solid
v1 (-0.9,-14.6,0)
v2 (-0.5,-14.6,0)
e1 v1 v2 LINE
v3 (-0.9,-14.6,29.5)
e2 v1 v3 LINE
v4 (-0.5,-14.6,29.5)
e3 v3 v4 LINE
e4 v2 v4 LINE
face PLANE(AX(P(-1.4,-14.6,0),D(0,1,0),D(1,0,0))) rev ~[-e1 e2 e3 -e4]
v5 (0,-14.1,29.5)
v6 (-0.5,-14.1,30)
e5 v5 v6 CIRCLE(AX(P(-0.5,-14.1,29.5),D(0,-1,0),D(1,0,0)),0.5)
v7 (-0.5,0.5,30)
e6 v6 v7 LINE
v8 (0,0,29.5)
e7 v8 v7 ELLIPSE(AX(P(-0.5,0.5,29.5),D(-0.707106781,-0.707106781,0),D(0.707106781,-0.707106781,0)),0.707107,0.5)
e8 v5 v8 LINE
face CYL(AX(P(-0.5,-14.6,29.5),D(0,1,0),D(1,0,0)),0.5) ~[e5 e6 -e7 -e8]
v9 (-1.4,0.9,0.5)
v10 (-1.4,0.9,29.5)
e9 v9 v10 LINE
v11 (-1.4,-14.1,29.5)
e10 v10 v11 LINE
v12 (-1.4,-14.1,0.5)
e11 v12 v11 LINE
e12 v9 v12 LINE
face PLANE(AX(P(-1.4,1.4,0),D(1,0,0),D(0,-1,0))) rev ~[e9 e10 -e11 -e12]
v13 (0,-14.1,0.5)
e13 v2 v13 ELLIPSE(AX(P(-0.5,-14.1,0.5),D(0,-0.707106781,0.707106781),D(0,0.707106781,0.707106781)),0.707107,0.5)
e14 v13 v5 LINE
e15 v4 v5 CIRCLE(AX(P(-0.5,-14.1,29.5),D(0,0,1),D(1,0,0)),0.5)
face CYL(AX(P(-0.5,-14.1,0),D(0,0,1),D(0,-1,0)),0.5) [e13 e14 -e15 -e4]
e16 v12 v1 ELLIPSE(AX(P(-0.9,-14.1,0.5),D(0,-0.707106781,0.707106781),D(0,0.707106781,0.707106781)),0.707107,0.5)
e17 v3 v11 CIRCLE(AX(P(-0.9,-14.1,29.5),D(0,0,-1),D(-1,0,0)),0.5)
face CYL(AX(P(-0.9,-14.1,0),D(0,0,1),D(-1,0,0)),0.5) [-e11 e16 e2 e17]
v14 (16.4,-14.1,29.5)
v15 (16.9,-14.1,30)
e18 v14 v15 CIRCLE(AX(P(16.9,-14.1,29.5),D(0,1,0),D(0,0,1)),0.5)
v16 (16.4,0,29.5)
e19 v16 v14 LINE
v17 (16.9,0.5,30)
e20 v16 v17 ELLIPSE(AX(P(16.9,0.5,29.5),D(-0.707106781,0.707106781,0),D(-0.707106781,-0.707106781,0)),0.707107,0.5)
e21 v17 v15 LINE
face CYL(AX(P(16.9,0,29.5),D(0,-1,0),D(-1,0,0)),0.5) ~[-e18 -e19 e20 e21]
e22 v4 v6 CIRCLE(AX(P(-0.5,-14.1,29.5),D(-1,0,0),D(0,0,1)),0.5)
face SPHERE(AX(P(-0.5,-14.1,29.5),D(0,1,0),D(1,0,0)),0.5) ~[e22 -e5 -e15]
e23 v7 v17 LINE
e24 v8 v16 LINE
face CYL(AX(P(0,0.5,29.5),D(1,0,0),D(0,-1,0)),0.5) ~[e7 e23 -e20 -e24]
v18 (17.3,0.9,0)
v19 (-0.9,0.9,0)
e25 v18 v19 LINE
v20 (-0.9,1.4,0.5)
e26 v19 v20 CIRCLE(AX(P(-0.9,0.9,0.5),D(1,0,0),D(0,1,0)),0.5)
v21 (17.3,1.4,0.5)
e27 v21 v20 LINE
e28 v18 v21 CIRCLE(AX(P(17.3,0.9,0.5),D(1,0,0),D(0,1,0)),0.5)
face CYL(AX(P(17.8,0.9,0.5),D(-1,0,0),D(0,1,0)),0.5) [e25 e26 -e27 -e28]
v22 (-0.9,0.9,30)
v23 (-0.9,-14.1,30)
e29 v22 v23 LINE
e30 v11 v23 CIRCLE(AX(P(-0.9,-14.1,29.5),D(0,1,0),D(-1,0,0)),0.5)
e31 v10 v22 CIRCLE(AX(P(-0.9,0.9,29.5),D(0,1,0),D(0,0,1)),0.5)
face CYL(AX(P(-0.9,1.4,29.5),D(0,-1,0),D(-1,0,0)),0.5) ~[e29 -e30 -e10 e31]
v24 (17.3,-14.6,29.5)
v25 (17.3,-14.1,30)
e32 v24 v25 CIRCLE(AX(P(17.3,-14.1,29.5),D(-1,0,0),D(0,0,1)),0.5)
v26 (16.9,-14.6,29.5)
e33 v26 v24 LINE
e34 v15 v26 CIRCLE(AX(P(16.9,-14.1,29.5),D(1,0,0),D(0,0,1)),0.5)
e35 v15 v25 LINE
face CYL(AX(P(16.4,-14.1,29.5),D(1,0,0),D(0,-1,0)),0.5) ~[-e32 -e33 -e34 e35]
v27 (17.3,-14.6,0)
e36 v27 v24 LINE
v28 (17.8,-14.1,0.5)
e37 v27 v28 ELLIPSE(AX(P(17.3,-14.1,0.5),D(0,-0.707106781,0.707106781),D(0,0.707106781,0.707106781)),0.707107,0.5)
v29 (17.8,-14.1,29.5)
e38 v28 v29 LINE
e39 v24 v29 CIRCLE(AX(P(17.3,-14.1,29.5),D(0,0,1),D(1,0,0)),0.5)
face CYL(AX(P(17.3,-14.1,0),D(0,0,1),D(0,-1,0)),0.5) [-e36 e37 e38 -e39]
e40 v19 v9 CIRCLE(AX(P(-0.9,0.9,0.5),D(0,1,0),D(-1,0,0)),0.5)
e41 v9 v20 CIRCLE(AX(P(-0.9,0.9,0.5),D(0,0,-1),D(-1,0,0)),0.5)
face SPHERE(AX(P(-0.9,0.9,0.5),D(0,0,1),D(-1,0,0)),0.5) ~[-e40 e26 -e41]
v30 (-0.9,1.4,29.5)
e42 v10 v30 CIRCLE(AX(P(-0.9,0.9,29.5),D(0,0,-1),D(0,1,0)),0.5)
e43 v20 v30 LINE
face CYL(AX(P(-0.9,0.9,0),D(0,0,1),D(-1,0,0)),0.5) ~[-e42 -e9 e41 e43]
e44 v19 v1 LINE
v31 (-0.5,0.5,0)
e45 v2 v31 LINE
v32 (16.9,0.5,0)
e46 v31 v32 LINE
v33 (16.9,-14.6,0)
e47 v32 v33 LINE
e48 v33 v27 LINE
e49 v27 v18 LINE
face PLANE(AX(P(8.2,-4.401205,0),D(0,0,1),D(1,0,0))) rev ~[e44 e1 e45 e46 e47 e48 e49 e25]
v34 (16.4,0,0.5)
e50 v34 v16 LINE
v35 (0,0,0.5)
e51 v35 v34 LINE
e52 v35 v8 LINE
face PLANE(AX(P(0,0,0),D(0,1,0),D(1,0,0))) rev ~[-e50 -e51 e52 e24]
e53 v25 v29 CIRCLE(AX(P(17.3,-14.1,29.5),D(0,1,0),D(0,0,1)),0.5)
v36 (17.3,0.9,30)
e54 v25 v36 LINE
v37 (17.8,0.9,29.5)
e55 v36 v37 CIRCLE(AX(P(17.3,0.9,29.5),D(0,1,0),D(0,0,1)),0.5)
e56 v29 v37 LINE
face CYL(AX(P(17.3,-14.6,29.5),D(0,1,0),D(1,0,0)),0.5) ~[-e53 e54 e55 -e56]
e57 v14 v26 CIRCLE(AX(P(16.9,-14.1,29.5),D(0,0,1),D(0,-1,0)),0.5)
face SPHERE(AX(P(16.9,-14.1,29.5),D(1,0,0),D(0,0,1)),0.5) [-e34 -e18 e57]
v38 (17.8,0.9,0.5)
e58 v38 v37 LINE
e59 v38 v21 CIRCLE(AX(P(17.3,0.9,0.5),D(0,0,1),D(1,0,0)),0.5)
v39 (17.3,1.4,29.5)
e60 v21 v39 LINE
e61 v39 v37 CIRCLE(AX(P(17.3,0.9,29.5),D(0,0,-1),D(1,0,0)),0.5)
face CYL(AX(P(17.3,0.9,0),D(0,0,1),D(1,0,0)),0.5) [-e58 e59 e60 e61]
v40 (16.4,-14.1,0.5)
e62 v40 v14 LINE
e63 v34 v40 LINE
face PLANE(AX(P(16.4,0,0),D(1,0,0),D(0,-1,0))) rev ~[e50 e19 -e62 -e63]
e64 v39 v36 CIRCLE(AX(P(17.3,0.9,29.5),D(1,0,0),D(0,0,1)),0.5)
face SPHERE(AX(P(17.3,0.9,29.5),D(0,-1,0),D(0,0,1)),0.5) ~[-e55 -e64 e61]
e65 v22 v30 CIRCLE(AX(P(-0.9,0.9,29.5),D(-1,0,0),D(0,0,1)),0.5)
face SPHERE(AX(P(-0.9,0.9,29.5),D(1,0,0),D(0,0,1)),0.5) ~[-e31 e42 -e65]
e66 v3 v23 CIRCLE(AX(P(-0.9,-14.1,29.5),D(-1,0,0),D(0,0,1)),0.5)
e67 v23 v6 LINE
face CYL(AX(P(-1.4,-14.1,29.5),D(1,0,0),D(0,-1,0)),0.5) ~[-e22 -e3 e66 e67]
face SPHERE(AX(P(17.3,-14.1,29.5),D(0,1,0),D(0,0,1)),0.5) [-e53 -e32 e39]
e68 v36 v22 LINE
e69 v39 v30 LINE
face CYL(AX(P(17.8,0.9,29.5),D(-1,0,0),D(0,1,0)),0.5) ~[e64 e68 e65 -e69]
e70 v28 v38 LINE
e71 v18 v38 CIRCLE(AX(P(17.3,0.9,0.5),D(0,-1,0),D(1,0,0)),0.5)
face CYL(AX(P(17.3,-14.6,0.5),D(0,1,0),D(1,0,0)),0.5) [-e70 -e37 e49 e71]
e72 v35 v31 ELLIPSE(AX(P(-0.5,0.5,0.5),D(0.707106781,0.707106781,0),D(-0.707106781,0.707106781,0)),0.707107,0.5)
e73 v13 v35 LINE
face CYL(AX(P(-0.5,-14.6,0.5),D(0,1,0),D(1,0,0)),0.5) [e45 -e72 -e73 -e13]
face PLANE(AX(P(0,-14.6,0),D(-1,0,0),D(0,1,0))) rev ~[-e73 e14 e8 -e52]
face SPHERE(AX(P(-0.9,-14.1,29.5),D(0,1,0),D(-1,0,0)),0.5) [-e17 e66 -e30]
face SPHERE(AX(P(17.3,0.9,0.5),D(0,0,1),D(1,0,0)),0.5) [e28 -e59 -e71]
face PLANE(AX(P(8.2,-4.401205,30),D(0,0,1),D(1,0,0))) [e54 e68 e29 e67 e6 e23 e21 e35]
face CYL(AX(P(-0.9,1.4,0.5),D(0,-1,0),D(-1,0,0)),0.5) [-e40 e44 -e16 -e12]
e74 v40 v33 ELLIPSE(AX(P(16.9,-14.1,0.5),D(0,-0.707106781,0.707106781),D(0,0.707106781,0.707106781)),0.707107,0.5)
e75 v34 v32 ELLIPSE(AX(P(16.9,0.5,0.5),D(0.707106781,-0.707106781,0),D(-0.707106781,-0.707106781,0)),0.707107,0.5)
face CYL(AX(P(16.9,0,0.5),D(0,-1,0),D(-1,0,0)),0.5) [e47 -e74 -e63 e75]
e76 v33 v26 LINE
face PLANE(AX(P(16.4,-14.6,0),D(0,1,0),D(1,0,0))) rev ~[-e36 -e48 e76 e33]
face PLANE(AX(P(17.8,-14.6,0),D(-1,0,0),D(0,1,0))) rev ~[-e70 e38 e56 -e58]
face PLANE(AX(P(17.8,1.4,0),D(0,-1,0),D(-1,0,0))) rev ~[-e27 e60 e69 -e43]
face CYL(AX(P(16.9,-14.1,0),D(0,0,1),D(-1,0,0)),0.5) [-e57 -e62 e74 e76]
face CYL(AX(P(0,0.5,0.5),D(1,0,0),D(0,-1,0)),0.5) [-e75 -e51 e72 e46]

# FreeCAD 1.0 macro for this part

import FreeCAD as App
import Part
import Sketcher
Q = App.Units.Quantity


def edges_at(feature, points):
    """Names of the edges that pass closest to the given points."""
    edges = feature.Shape.Edges
    near = lambda p: min(range(len(edges)), key=lambda i: edges[i].distToShape(Part.Vertex(*p))[0])
    return sorted({f"Edge{near(p) + 1}" for p in points})


def add_polygon(sketch, points):
    """Adds a closed chain of lines whose ends are joined by coincident constraints."""
    first, n = sketch.GeometryCount, len(points)
    for a, b in zip(points, points[1:] + points[:1]):
        sketch.addGeometry(Part.LineSegment(App.Vector(*a, 0), App.Vector(*b, 0)), False)
    for i in range(n):
        sketch.addConstraint(Sketcher.Constraint("Coincident", first + i, 2, first + (i + 1) % n, 1))

doc = App.newDocument("Part")
params = doc.addObject("Spreadsheet::Sheet", "Params")
for row, (alias, value) in enumerate([
    ("sketch1_height", "16 mm"),
    ("sketch1_width", "1.4 mm"),
    ("sketch1_width2", "16.4 mm"),
    ("sketch1_height2", "14.6 mm"),
    ("pad1_length", "30 mm"),
    ("fillet_radius", "0.5 mm"),
], start=1):
    params.set(f"A{row}", alias)
    params.set(f"B{row}", "=" + value)
    params.setAlias(f"B{row}", alias)

body = doc.addObject("PartDesign::Body", "Body")

# Sketch on XY plane
sketch1 = doc.addObject("Sketcher::SketchObject", "Sketch")
body.addObject(sketch1)
sketch1.AttachmentSupport = (doc.XY_Plane, [""])
sketch1.MapMode = "FlatFace"
add_polygon(sketch1, [(-1.4, 1.4), (-1.4, -14.6), (0, -14.6), (0, 0), (16.4, 0), (16.4, -14.6), (17.8, -14.6), (17.8, 1.4)])  # lines 0-7
sketch1.addConstraint(Sketcher.Constraint("Vertical", 0))
sketch1.addConstraint(Sketcher.Constraint("Horizontal", 1))
sketch1.addConstraint(Sketcher.Constraint("Vertical", 2))
sketch1.addConstraint(Sketcher.Constraint("Horizontal", 3))
sketch1.addConstraint(Sketcher.Constraint("Vertical", 4))
sketch1.addConstraint(Sketcher.Constraint("Horizontal", 5))
sketch1.addConstraint(Sketcher.Constraint("Vertical", 6))
sketch1.addConstraint(Sketcher.Constraint("Horizontal", 7))
sketch1.addConstraint(Sketcher.Constraint("Coincident", 2, 2, -1, 1))
sketch1.addConstraint(Sketcher.Constraint("Horizontal", 1, 2, 4, 2))
sketch1.addConstraint(Sketcher.Constraint("Equal", 1, 5))
sketch1.addConstraint(Sketcher.Constraint("DistanceY", 0, 2, 0, 1, Q("16 mm")))
sketch1.addConstraint(Sketcher.Constraint("DistanceX", 1, 1, 1, 2, Q("1.4 mm")))
sketch1.addConstraint(Sketcher.Constraint("DistanceX", 3, 1, 3, 2, Q("16.4 mm")))
sketch1.addConstraint(Sketcher.Constraint("DistanceY", 2, 1, 2, 2, Q("14.6 mm")))
sketch1.setExpression("Constraints[19]", "Params.sketch1_height")
sketch1.setExpression("Constraints[20]", "Params.sketch1_width")
sketch1.setExpression("Constraints[21]", "Params.sketch1_width2")
sketch1.setExpression("Constraints[22]", "Params.sketch1_height2")
pad1 = doc.addObject("PartDesign::Pad", "Pad")
body.addObject(pad1)
pad1.Profile = sketch1
pad1.setExpression("Length", "Params.pad1_length")
doc.recompute()

fillet = doc.addObject("PartDesign::Fillet", "Fillet")
body.addObject(fillet)
fillet.Base = (pad1, edges_at(pad1, [
    (17.8, -6.6, 30),
    (17.1, -14.6, 30),
    (16.4, -7.3, 30),
    (8.2, 0, 30),
    (8.2, 1.4, 30),
    (-1.4, -6.6, 30),
    (0, -7.3, 30),
    (-1.4, 1.4, 15),
    (17.8, 1.4, 15),
    (17.8, -14.6, 15),
    (16.4, -14.6, 15),
    (0, -14.6, 15),
    (-1.4, -14.6, 15),
    (-0.7, -14.6, 30),
    (17.8, -6.6, 0),
    (16.4, -7.3, 0),
    (0, -7.3, 0),
    (-1.4, -6.6, 0),
    (8.2, 1.4, 0),
    (8.2, 0, 0),
]))
fillet.setExpression("Radius", "Params.fillet_radius")

doc.recompute()
